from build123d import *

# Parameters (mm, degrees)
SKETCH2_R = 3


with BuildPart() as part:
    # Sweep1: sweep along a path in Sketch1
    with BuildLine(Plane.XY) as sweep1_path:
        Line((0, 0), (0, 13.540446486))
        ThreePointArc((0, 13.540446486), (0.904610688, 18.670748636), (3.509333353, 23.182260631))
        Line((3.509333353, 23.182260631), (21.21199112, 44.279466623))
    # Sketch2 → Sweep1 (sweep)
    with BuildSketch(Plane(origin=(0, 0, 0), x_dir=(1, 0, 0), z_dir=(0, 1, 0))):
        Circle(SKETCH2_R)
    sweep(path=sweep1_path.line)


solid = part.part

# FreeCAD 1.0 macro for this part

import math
import FreeCAD as App
import Part
import Sketcher

V = App.Vector
Q = App.Units.Quantity

doc = App.newDocument("Part")
body = doc.addObject("PartDesign::Body", "Body")

# Sketch on XZ plane
sketch1 = body.newObject("Sketcher::SketchObject", "Sketch")
sketch1.AttachmentSupport = (doc.getObject("XZ_Plane"), [""])
sketch1.MapMode = "FlatFace"
sketch1.addGeometry(Part.Circle(V(0, 0, 0), V(0, 0, 1), 3), False)
sketch1.addConstraint([
    Sketcher.Constraint("Coincident", 0, 3, -1, 1),
    Sketcher.Constraint("Diameter", 0, Q("6 mm")),
])

# Sketch on XY plane
sketch2 = body.newObject("Sketcher::SketchObject", "Sketch001")
sketch2.AttachmentSupport = (doc.getObject("XY_Plane"), [""])
sketch2.MapMode = "FlatFace"
sketch2.addGeometry([
    Part.LineSegment(V(0, 0, 0), V(0, 13.540446, 0)),
    Part.ArcOfCircle(Part.Circle(V(15, 13.540446, 0), V(0, 0, 1), 15), math.radians(140), math.radians(180)),
    Part.LineSegment(V(3.509333, 23.182261, 0), V(21.211991, 44.279467, 0)),
], False)
sketch2.addConstraint([
    Sketcher.Constraint("Tangent", 0, 2, 1, 2),
    Sketcher.Constraint("Tangent", 1, 1, 2, 1),
    Sketcher.Constraint("Vertical", 0),
    Sketcher.Constraint("Coincident", 0, 1, -1, 1),
    Sketcher.Constraint("Radius", 1, Q("15 mm")),
    Sketcher.Constraint("Angle", 2, Q("50 deg")),
    Sketcher.Constraint("DistanceY", 0, 1, 0, 2, Q("13.540446 mm")),
    Sketcher.Constraint("DistanceX", -1, 1, 2, 2, Q("21.211991 mm")),
])
doc.recompute()

additivepipe = body.newObject("PartDesign::AdditivePipe", "AdditivePipe")
additivepipe.Profile = sketch1
additivepipe.Spine = (sketch2, ["Edge1", "Edge2", "Edge3"])

doc.recompute()
